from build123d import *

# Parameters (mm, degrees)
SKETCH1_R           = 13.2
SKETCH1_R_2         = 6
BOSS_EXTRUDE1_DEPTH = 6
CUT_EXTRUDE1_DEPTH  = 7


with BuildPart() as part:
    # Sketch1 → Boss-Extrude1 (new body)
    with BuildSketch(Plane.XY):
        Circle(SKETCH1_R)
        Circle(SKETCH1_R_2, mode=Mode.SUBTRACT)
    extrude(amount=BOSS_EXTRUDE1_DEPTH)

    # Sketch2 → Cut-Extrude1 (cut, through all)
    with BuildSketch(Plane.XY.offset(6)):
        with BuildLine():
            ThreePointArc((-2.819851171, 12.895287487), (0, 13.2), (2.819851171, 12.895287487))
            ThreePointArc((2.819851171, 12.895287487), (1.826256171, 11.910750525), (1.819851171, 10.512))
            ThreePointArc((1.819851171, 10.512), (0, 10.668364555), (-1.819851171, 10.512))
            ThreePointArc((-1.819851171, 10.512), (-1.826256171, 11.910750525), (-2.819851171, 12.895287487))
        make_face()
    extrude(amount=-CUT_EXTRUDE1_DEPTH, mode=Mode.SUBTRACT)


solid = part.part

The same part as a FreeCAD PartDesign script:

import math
import FreeCAD as App
import Part
import Sketcher
from FreeCAD import Vector
Q = App.Units.Quantity

doc = App.newDocument("Part")
body = doc.addObject("PartDesign::Body", "Body")

sketch1 = body.newObject("Sketcher::SketchObject", "Sketch")
sketch1.AttachmentSupport = (doc.getObject("XY_Plane"), [""])
sketch1.MapMode = "FlatFace"
sketch1.addGeometry([
    Part.Circle(Vector(0, 0, 0), Vector(0, 0, 1), 13),
    Part.Circle(Vector(0, 0, 0), Vector(0, 0, 1), 6),
], False)
sketch1.addConstraint([
    Sketcher.Constraint("Coincident", 0, 3, -1, 1),
    Sketcher.Constraint("Coincident", 1, 3, -1, 1),
    Sketcher.Constraint("Diameter", 1, Q("12 mm")),
    Sketcher.Constraint("Diameter", 0, Q("26.4 mm")),
])
pad1 = body.newObject("PartDesign::Pad", "Pad")
pad1.Profile = sketch1
pad1.Length = 6

sketch2 = body.newObject("Sketcher::SketchObject", "Sketch001")
sketch2.AttachmentSupport = (doc.getObject("XY_Plane"), [""])
sketch2.MapMode = "FlatFace"
sketch2.AttachmentOffset = App.Placement(Vector(0, 0, 6), App.Rotation())
sketch2.addGeometry([
    Part.ArcOfCircle(Part.Circle(Vector(0, 0, 0), Vector(0, 0, 1), 13.2), math.radians(78), math.radians(102)),
    Part.ArcOfCircle(Part.Circle(Vector(-3.5, 11.2, 0), Vector(0, 0, 1), 1.8), math.radians(-22), math.radians(68)),
    Part.ArcOfCircle(Part.Circle(Vector(0, 0, 0), Vector(0, 0, 1), 10.7), math.radians(80.18), math.radians(99.82)),
    Part.ArcOfCircle(Part.Circle(Vector(3.5, 11.2, 0), Vector(0, 0, 1), 1.8), math.radians(112), math.radians(202)),
], False)
sketch2.addConstraint([
    Sketcher.Constraint("Coincident", 0, 2, 1, 2),
    Sketcher.Constraint("Coincident", 1, 1, 2, 2),
    Sketcher.Constraint("Coincident", 2, 1, 3, 2),
    Sketcher.Constraint("Coincident", 3, 1, 0, 1),
    Sketcher.Constraint("Coincident", 0, 3, -1, 1),
    Sketcher.Constraint("Coincident", 2, 3, -1, 1),
    Sketcher.Constraint("Equal", 1, 3),
    Sketcher.Constraint("Symmetric", 1, 3, 3, 3, -2),
    Sketcher.Constraint("Radius", 0, Q("13.2 mm")),
    Sketcher.Constraint("DistanceX", 0, 2, 1, 1, Q("1 mm")),
    Sketcher.Constraint("DistanceY", -1, 1, 1, 1, Q("10.512 mm")),
    Sketcher.Constraint("Radius", 1, Q("1.827575 mm")),
    Sketcher.Constraint("Radius", 2, Q("10.668365 mm")),
])
pocket1 = body.newObject("PartDesign::Pocket", "Pocket")
pocket1.Profile = sketch2
pocket1.Type = "ThroughAll"

doc.recompute()
